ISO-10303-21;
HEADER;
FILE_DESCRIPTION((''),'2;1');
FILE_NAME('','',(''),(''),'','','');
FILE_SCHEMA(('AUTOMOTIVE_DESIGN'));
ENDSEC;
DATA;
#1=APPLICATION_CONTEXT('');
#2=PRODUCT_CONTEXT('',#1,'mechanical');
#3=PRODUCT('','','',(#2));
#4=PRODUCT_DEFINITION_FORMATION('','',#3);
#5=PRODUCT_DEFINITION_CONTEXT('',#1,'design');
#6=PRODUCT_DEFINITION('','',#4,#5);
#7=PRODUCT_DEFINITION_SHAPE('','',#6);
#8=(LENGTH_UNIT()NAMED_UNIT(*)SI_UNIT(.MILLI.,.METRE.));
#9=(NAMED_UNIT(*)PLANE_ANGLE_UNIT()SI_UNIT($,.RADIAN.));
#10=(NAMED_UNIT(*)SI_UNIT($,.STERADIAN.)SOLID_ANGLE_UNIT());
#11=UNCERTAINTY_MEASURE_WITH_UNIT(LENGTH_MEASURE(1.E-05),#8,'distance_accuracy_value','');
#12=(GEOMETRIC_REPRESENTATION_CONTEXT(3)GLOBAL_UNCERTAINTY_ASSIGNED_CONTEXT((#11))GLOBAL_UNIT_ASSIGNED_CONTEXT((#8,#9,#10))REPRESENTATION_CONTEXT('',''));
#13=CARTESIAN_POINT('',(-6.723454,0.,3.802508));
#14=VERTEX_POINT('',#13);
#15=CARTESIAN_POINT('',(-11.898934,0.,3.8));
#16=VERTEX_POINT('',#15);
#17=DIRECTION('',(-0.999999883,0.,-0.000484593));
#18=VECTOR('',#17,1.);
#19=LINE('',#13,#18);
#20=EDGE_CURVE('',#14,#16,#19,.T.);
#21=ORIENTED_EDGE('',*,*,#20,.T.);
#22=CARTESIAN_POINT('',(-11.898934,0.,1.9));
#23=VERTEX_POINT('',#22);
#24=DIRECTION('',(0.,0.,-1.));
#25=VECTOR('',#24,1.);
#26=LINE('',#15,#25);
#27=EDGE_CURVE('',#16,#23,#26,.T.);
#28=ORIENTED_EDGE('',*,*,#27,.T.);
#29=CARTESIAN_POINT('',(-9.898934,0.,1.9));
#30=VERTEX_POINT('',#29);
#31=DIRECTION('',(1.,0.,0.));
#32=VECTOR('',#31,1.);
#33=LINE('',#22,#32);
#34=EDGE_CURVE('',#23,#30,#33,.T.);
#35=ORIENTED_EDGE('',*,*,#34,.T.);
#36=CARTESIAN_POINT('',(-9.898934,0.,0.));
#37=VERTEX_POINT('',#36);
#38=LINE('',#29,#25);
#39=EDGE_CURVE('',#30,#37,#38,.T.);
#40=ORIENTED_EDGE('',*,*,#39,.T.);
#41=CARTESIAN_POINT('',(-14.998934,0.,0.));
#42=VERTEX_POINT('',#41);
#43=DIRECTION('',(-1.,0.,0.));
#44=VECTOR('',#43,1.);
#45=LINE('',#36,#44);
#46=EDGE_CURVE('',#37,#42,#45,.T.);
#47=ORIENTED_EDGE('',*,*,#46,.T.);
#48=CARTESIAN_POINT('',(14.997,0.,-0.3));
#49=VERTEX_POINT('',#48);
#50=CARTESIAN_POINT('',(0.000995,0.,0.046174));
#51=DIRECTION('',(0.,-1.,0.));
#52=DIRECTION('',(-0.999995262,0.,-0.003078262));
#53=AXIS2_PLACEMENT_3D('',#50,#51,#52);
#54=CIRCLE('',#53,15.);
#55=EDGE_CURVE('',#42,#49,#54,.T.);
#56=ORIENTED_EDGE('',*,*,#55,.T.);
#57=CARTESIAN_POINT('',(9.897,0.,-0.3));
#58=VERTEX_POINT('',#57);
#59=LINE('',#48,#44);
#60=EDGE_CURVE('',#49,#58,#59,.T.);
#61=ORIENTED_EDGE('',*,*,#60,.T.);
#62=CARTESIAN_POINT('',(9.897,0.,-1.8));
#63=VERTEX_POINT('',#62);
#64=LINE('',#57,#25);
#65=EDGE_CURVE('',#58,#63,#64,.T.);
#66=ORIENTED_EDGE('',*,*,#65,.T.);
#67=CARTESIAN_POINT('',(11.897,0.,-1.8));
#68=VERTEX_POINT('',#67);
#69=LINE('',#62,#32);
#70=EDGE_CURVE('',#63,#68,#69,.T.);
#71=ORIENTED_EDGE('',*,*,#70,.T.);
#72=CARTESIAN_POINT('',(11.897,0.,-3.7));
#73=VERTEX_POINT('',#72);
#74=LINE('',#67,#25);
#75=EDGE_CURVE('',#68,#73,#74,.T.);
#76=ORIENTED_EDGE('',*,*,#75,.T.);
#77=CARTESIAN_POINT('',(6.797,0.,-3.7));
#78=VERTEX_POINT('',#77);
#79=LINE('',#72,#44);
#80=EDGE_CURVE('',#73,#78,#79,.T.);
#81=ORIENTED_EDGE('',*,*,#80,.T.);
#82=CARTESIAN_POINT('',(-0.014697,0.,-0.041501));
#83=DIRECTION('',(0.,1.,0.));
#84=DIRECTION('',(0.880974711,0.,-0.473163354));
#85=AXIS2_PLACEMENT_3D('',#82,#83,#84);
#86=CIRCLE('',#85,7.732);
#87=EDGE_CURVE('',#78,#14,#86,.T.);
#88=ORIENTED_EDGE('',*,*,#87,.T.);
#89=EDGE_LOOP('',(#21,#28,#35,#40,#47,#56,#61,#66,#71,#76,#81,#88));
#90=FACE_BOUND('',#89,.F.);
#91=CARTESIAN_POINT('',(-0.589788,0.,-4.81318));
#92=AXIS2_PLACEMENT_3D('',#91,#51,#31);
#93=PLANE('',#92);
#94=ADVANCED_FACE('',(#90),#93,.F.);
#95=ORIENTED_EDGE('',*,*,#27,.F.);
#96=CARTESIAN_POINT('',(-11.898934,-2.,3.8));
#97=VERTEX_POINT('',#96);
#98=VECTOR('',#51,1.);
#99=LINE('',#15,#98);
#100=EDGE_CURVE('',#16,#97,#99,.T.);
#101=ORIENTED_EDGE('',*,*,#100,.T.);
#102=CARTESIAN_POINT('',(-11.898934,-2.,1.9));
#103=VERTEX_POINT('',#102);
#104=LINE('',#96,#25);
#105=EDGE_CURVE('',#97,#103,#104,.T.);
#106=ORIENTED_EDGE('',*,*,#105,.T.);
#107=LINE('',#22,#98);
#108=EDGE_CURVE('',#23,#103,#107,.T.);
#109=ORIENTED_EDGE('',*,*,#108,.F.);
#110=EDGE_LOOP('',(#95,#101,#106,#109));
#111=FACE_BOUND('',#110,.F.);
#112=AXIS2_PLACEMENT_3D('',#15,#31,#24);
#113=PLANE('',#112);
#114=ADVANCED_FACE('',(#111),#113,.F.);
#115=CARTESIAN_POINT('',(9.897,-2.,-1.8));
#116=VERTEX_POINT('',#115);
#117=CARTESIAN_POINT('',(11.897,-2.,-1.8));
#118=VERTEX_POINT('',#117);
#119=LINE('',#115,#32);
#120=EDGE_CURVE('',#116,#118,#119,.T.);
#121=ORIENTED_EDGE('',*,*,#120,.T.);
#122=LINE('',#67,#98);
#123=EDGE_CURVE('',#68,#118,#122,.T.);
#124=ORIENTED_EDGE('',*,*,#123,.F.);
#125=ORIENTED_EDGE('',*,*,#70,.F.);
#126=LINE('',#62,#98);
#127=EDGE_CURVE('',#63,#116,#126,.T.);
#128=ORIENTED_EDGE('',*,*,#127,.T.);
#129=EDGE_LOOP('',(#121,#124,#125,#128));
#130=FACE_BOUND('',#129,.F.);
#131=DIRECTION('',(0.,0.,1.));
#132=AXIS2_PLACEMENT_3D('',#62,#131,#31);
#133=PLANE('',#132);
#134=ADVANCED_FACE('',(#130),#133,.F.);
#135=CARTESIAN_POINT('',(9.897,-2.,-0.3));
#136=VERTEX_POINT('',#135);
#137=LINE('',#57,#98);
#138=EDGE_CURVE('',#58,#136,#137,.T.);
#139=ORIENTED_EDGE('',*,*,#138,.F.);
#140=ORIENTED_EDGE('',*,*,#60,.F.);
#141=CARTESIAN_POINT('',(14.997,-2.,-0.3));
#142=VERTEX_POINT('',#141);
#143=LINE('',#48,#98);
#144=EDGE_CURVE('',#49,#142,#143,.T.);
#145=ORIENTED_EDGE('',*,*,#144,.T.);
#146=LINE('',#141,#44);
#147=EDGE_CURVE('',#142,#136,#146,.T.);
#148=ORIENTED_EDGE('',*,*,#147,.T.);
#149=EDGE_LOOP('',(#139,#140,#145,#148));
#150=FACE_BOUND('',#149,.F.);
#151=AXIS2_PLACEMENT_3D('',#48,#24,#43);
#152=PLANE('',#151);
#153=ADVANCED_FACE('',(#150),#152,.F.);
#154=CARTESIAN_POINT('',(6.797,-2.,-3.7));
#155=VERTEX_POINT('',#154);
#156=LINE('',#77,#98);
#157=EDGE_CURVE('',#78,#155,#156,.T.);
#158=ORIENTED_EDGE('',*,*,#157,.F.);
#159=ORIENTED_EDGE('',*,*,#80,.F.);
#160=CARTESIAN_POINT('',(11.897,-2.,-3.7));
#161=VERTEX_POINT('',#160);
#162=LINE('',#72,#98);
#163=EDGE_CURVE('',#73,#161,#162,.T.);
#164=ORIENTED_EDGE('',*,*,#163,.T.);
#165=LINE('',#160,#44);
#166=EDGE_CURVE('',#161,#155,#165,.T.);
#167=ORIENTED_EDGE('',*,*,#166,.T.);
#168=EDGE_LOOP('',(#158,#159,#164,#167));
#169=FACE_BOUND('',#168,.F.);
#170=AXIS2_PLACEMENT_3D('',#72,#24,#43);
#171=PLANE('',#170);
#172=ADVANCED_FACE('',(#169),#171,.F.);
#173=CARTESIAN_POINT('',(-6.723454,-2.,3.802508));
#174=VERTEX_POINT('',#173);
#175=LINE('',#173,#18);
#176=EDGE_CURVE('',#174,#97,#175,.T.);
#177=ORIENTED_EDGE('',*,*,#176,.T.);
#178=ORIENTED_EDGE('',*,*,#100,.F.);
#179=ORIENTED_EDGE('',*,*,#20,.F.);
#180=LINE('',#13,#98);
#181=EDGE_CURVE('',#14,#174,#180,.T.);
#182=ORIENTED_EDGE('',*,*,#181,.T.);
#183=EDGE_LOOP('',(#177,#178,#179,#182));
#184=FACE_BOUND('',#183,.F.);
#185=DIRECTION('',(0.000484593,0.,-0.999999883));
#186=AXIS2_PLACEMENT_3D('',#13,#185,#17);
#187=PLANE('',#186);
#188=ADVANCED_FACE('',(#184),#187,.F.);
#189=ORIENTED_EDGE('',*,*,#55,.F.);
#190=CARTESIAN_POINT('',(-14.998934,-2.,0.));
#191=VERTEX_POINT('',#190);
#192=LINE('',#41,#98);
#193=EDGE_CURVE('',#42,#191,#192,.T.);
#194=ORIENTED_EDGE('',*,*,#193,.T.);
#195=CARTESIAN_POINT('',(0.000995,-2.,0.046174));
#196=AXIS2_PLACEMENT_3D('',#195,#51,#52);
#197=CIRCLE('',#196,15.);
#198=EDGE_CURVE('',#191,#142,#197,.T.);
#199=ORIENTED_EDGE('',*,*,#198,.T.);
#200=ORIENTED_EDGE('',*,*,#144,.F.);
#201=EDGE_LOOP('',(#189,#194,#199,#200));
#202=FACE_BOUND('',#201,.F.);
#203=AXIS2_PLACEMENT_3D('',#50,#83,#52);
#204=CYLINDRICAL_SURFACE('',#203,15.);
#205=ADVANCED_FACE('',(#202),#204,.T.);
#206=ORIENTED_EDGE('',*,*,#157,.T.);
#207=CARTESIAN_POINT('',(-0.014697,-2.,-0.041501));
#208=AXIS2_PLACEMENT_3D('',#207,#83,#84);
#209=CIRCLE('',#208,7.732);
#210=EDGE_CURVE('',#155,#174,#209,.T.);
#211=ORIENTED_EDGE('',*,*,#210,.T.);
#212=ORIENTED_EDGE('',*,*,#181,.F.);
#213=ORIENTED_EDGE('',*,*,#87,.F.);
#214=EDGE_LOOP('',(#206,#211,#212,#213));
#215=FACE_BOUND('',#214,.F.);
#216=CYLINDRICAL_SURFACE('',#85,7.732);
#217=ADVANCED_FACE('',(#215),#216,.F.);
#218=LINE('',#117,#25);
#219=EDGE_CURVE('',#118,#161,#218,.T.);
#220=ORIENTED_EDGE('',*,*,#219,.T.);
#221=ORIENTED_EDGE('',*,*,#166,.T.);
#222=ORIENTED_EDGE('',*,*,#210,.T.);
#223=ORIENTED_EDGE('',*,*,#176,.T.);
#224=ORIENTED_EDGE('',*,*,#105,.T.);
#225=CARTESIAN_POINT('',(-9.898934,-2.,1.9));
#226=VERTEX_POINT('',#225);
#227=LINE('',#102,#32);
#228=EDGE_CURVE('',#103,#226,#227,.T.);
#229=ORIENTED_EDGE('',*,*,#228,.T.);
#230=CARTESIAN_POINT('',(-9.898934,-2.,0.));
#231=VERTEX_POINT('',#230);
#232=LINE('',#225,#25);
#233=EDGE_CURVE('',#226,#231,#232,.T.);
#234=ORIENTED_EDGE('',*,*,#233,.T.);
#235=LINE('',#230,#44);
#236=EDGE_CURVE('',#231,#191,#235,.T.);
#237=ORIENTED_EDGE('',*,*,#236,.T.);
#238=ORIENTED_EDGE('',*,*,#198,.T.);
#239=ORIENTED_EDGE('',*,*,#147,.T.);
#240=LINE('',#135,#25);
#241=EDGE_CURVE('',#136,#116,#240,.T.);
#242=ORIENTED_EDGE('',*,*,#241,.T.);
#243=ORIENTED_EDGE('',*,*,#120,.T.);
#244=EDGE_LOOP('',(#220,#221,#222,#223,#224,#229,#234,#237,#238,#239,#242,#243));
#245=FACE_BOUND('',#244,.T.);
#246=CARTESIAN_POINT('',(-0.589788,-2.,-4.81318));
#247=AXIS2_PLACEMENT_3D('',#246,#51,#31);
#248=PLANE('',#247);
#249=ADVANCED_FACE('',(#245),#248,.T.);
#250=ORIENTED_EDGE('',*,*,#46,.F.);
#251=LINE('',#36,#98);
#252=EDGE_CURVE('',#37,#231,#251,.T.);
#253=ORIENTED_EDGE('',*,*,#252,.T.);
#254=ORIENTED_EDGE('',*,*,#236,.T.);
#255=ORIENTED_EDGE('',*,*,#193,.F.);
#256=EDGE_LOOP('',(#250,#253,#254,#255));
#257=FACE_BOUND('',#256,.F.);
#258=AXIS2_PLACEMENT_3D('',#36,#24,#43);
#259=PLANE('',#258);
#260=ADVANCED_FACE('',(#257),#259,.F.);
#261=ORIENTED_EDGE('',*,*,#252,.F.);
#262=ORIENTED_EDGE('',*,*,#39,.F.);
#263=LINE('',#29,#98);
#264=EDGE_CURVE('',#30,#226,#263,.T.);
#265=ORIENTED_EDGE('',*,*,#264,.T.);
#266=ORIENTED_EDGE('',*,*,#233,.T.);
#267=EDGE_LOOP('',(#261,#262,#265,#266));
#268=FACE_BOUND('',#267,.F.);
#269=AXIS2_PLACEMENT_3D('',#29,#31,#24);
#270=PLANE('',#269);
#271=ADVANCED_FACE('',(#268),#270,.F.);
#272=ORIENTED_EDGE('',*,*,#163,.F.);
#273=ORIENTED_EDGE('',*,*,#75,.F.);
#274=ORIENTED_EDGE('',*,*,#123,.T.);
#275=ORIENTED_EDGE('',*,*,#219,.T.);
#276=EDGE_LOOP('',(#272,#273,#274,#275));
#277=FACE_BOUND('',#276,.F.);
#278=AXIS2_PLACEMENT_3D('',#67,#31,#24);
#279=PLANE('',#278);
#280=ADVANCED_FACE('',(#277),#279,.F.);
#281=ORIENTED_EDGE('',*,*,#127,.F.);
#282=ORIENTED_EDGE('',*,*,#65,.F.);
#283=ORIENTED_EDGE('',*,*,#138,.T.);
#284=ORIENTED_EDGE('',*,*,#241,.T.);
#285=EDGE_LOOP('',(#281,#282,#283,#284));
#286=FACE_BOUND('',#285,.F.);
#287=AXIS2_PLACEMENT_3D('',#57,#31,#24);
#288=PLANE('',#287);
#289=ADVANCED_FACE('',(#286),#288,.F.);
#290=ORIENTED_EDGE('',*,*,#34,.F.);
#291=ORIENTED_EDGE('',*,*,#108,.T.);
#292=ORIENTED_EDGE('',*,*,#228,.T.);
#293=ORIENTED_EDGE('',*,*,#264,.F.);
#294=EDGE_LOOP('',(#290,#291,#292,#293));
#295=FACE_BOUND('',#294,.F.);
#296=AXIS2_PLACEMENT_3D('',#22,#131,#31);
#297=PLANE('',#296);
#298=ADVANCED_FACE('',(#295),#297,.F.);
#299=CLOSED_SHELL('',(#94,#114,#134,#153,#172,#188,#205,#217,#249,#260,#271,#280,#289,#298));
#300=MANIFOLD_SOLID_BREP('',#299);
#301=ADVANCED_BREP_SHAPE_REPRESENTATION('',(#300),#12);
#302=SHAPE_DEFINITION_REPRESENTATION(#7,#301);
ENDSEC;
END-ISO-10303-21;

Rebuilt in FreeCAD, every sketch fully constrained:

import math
import FreeCAD as App
import Part
import Sketcher
from FreeCAD import Vector
Q = App.Units.Quantity

doc = App.newDocument("Part")
body = doc.addObject("PartDesign::Body", "Body")

# Sketch on XZ plane
sketch1 = body.newObject("Sketcher::SketchObject", "Sketch")
sketch1.AttachmentSupport = (doc.getObject("XZ_Plane"), [""])
sketch1.MapMode = "FlatFace"
sketch1.addGeometry(Part.LineSegment(Vector(-9.898934, 0, 0), Vector(-14.998934, 0, 0)), False)
sketch1.addGeometry(Part.ArcOfCircle(Part.Circle(Vector(0.000995, 0.046174, 0), Vector(0, 0, 1), 15), math.radians(-179.823628), math.radians(-1.322404)), False)
sketch1.addGeometry(Part.LineSegment(Vector(14.997, -0.3, 0), Vector(9.897, -0.3, 0)), False)
sketch1.addGeometry(Part.LineSegment(Vector(9.897, -0.3, 0), Vector(9.897, -1.8, 0)), False)
sketch1.addGeometry(Part.LineSegment(Vector(9.897, -1.8, 0), Vector(11.897, -1.8, 0)), False)
sketch1.addGeometry(Part.LineSegment(Vector(11.897, -1.8, 0), Vector(11.897, -3.7, 0)), False)
sketch1.addGeometry(Part.LineSegment(Vector(11.897, -3.7, 0), Vector(6.797, -3.7, 0)), False)
sketch1.addGeometry(Part.ArcOfCircle(Part.Circle(Vector(-0.014697, -0.041501, 0), Vector(0, 0, 1), 7.732), math.radians(150.187993), math.radians(331.760167)), False)
sketch1.addGeometry(Part.LineSegment(Vector(-6.723454, 3.802508, 0), Vector(-11.898934, 3.8, 0)), False)
sketch1.addGeometry(Part.LineSegment(Vector(-11.898934, 3.8, 0), Vector(-11.898934, 1.9, 0)), False)
sketch1.addGeometry(Part.LineSegment(Vector(-11.898934, 1.9, 0), Vector(-9.898934, 1.9, 0)), False)
sketch1.addGeometry(Part.LineSegment(Vector(-9.898934, 1.9, 0), Vector(-9.898934, 0, 0)), False)
sketch1.addConstraint(Sketcher.Constraint("Coincident", 0, 2, 1, 1))
sketch1.addConstraint(Sketcher.Constraint("Coincident", 1, 2, 2, 1))
sketch1.addConstraint(Sketcher.Constraint("Coincident", 2, 2, 3, 1))
sketch1.addConstraint(Sketcher.Constraint("Coincident", 3, 2, 4, 1))
sketch1.addConstraint(Sketcher.Constraint("Coincident", 4, 2, 5, 1))
sketch1.addConstraint(Sketcher.Constraint("Coincident", 5, 2, 6, 1))
sketch1.addConstraint(Sketcher.Constraint("Coincident", 6, 2, 7, 2))
sketch1.addConstraint(Sketcher.Constraint("Coincident", 7, 1, 8, 1))
sketch1.addConstraint(Sketcher.Constraint("Coincident", 8, 2, 9, 1))
sketch1.addConstraint(Sketcher.Constraint("Coincident", 9, 2, 10, 1))
sketch1.addConstraint(Sketcher.Constraint("Coincident", 10, 2, 11, 1))
sketch1.addConstraint(Sketcher.Constraint("Coincident", 11, 2, 0, 1))
sketch1.addConstraint(Sketcher.Constraint("Horizontal", 0))
sketch1.addConstraint(Sketcher.Constraint("Horizontal", 2))
sketch1.addConstraint(Sketcher.Constraint("Vertical", 3))
sketch1.addConstraint(Sketcher.Constraint("Horizontal", 4))
sketch1.addConstraint(Sketcher.Constraint("Vertical", 5))
sketch1.addConstraint(Sketcher.Constraint("Horizontal", 6))
sketch1.addConstraint(Sketcher.Constraint("Vertical", 9))
sketch1.addConstraint(Sketcher.Constraint("Horizontal", 10))
sketch1.addConstraint(Sketcher.Constraint("Vertical", 11))
sketch1.addConstraint(Sketcher.Constraint("PointOnObject", 0, 2, -1))
sketch1.addConstraint(Sketcher.Constraint("Equal", 0, 2))
sketch1.addConstraint(Sketcher.Constraint("Equal", 2, 6))
sketch1.addConstraint(Sketcher.Constraint("Equal", 4, 10))
sketch1.addConstraint(Sketcher.Constraint("Equal", 5, 9))
sketch1.addConstraint(Sketcher.Constraint("Equal", 9, 11))
sketch1.addConstraint(Sketcher.Constraint("Radius", 1, Q("15 mm")))
sketch1.addConstraint(Sketcher.Constraint("DistanceX", 4, 1, 4, 2, Q("2 mm")))
sketch1.addConstraint(Sketcher.Constraint("DistanceX", 0, 2, 0, 1, Q("5.1 mm")))
sketch1.addConstraint(Sketcher.Constraint("DistanceY", 3, 2, 3, 1, Q("1.5 mm")))
sketch1.addConstraint(Sketcher.Constraint("DistanceY", 5, 2, 5, 1, Q("1.9 mm")))
sketch1.addConstraint(Sketcher.Constraint("Radius", 7, Q("7.732 mm")))
sketch1.addConstraint(Sketcher.Constraint("DistanceY", 1, 2, -1, 1, Q("0.3 mm")))
sketch1.addConstraint(Sketcher.Constraint("DistanceX", -1, 1, 1, 2, Q("14.997 mm")))
sketch1.addConstraint(Sketcher.Constraint("DistanceY", 7, 3, -1, 1, Q("0.041501 mm")))
sketch1.addConstraint(Sketcher.Constraint("Distance", 8, Q("5.175481 mm")))
sketch1.addConstraint(Sketcher.Constraint("DistanceX", 7, 3, 1, 3, Q("0.015692 mm")))
pad1 = body.newObject("PartDesign::Pad", "Pad")
pad1.Profile = sketch1
pad1.Length = 2

doc.recompute()
